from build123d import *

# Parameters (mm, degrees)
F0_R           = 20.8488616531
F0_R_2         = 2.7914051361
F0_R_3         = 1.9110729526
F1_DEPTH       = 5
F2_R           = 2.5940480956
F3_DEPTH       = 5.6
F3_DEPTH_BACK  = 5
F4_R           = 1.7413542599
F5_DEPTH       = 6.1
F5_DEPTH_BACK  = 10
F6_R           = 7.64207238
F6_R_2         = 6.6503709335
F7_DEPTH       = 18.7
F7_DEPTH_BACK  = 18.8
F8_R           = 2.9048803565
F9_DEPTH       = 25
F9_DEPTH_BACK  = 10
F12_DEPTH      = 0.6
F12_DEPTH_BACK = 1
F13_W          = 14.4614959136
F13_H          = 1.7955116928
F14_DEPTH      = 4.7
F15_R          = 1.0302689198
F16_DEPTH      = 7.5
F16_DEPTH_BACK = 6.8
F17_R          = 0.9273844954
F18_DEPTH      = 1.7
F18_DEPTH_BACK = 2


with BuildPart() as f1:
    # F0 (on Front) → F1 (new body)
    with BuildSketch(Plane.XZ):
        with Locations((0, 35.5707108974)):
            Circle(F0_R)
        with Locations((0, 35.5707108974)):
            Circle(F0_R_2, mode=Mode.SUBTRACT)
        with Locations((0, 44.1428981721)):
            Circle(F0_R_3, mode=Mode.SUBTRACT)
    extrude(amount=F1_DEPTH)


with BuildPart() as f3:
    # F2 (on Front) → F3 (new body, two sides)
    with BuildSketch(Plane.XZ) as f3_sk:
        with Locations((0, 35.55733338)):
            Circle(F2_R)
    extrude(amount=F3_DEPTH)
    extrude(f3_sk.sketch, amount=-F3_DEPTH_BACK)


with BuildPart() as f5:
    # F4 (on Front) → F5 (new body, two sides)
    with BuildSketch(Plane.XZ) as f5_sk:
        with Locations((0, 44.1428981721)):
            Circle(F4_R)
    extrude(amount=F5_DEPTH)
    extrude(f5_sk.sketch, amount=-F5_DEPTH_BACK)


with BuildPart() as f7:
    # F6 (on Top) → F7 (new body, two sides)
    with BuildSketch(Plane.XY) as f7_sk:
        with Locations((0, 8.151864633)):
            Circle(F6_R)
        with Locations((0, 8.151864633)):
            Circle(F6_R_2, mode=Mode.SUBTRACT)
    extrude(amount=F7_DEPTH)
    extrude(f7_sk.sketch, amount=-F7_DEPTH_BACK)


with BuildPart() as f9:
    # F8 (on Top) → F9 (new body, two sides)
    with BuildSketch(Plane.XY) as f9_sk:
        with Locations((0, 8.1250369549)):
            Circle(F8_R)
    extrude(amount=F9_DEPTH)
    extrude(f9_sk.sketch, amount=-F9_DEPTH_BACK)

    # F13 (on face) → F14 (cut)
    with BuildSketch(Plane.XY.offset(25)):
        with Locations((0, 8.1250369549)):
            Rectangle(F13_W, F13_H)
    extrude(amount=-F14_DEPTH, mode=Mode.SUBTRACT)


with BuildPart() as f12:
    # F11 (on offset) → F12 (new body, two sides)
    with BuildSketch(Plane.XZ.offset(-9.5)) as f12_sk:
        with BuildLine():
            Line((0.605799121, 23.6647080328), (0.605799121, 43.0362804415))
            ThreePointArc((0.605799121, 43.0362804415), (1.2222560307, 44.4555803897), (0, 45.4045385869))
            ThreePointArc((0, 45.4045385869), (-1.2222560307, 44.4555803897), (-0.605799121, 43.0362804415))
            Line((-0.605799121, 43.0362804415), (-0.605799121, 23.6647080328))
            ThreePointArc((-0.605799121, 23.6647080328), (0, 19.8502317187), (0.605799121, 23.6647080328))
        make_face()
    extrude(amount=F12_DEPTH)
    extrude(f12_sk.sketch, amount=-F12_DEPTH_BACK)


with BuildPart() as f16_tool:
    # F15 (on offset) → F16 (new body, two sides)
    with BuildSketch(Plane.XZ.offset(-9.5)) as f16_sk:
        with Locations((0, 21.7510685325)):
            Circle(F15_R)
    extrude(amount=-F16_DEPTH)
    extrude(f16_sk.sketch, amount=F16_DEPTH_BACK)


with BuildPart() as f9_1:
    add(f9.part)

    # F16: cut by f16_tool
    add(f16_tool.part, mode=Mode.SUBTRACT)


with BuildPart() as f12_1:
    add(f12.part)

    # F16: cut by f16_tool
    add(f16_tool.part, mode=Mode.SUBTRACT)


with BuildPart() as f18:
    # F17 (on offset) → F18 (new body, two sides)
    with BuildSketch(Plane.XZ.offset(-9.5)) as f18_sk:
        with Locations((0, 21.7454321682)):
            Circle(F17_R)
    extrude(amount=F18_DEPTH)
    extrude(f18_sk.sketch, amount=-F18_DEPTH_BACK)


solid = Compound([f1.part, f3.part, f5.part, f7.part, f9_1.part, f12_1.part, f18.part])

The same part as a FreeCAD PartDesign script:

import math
import FreeCAD as App
import Part
import Sketcher

V = App.Vector

doc = App.newDocument("Part")
body = doc.addObject("PartDesign::Body", "Body")

sketch1 = body.newObject("Sketcher::SketchObject", "Sketch")
sketch1.AttachmentSupport = (doc.getObject("XZ_Plane"), [""])
sketch1.MapMode = "FlatFace"
sketch1.addGeometry([
    Part.Circle(V(0, 35.6, 0), V(0, 0, 1), 20.8),
    Part.Circle(V(0, 35.6, 0), V(0, 0, 1), 2.8),
    Part.Circle(V(0, 44.1, 0), V(0, 0, 1), 1.9),
], False)
sketch1.addConstraint([
    Sketcher.Constraint("Coincident", 1, 3, 0, 3),
    Sketcher.Constraint("PointOnObject", 0, 3, -2),
    Sketcher.Constraint("PointOnObject", 2, 3, -2),
    Sketcher.Constraint("Diameter", 1, 5.58281),
    Sketcher.Constraint("Diameter", 0, 41.697723),
    Sketcher.Constraint("Diameter", 2, 3.822146),
    Sketcher.Constraint("DistanceY", -1, 1, 2, 3, 44.142898),
    Sketcher.Constraint("DistanceY", -1, 1, 0, 3, 35.570711),
])
pad1 = body.newObject("PartDesign::Pad", "Pad")
pad1.Profile = sketch1
pad1.Length = 5
body2 = doc.addObject("PartDesign::Body", "Body001")

sketch2 = body2.newObject("Sketcher::SketchObject", "Sketch001")
sketch2.AttachmentSupport = (doc.getObject("XZ_Plane001"), [""])
sketch2.MapMode = "FlatFace"
sketch2.addGeometry(Part.Circle(V(0, 35.6, 0), V(0, 0, 1), 2.6), False)
sketch2.addConstraint([
    Sketcher.Constraint("PointOnObject", 0, 3, -2),
    Sketcher.Constraint("Diameter", 0, 5.188096),
    Sketcher.Constraint("DistanceY", -1, 1, 0, 3, 35.557333),
])
pad2 = body2.newObject("PartDesign::Pad", "Pad001")
pad2.Profile = sketch2
pad2.Type = "TwoLengths"
pad2.Length = 5.6
pad2.Length2 = 5
body3 = doc.addObject("PartDesign::Body", "Body002")

sketch3 = body3.newObject("Sketcher::SketchObject", "Sketch002")
sketch3.AttachmentSupport = (doc.getObject("XZ_Plane002"), [""])
sketch3.MapMode = "FlatFace"
sketch3.addGeometry(Part.Circle(V(0, 44.1, 0), V(0, 0, 1), 1.7), False)
sketch3.addConstraint([
    Sketcher.Constraint("PointOnObject", 0, 3, -2),
    Sketcher.Constraint("Diameter", 0, 3.482709),
    Sketcher.Constraint("DistanceY", -1, 1, 0, 3, 44.142898),
])
pad3 = body3.newObject("PartDesign::Pad", "Pad002")
pad3.Profile = sketch3
pad3.Type = "TwoLengths"
pad3.Length = 6.1
pad3.Length2 = 10
body4 = doc.addObject("PartDesign::Body", "Body003")

sketch4 = body4.newObject("Sketcher::SketchObject", "Sketch003")
sketch4.AttachmentSupport = (doc.getObject("XY_Plane003"), [""])
sketch4.MapMode = "FlatFace"
sketch4.addGeometry([
    Part.Circle(V(0, 8, 0), V(0, 0, 1), 8),
    Part.Circle(V(0, 8, 0), V(0, 0, 1), 7),
], False)
sketch4.addConstraint([
    Sketcher.Constraint("Coincident", 1, 3, 0, 3),
    Sketcher.Constraint("PointOnObject", 0, 3, -2),
    Sketcher.Constraint("Diameter", 1, 13.300742),
    Sketcher.Constraint("Diameter", 0, 15.284145),
    Sketcher.Constraint("DistanceY", -1, 1, 0, 3, 8.151865),
])
pad4 = body4.newObject("PartDesign::Pad", "Pad003")
pad4.Profile = sketch4
pad4.Type = "TwoLengths"
pad4.Length = 18.7
pad4.Length2 = 18.8
body5 = doc.addObject("PartDesign::Body", "Body004")

sketch5 = body5.newObject("Sketcher::SketchObject", "Sketch004")
sketch5.AttachmentSupport = (doc.getObject("XY_Plane004"), [""])
sketch5.MapMode = "FlatFace"
sketch5.addGeometry(Part.Circle(V(0, 8.1, 0), V(0, 0, 1), 2.9), False)
sketch5.addConstraint([
    Sketcher.Constraint("PointOnObject", 0, 3, -2),
    Sketcher.Constraint("Diameter", 0, 5.809761),
    Sketcher.Constraint("DistanceY", -1, 1, 0, 3, 8.125037),
])
pad5 = body5.newObject("PartDesign::Pad", "Pad004")
pad5.Profile = sketch5
pad5.Type = "TwoLengths"
pad5.Length = 25
pad5.Length2 = 10

sketch6 = body5.newObject("Sketcher::SketchObject", "Sketch005")
sketch6.AttachmentSupport = (doc.getObject("XY_Plane004"), [""])
sketch6.MapMode = "FlatFace"
sketch6.AttachmentOffset = App.Placement(V(0, 0, 25), App.Rotation())
sketch6.addGeometry([
    Part.LineSegment(V(-7.2, 9, 0), V(-7.2, 7.2, 0)),
    Part.LineSegment(V(-7.2, 7.2, 0), V(7.2, 7.2, 0)),
    Part.LineSegment(V(7.2, 7.2, 0), V(7.2, 9, 0)),
    Part.LineSegment(V(7.2, 9, 0), V(-7.2, 9, 0)),
], False)
sketch6.addConstraint([
    Sketcher.Constraint("Coincident", 0, 2, 1, 1),
    Sketcher.Constraint("Coincident", 1, 2, 2, 1),
    Sketcher.Constraint("Coincident", 2, 2, 3, 1),
    Sketcher.Constraint("Coincident", 3, 2, 0, 1),
    Sketcher.Constraint("Vertical", 0),
    Sketcher.Constraint("Horizontal", 1),
    Sketcher.Constraint("Vertical", 2),
    Sketcher.Constraint("Horizontal", 3),
    Sketcher.Constraint("DistanceY", 0, 2, 0, 1, 1.795512),
    Sketcher.Constraint("DistanceX", 1, 1, 1, 2, 14.461496),
    Sketcher.Constraint("DistanceY", -1, 1, 0, 2, 7.227281),
    Sketcher.Constraint("DistanceX", 0, 2, -1, 1, 7.230748),
])
pocket1 = body5.newObject("PartDesign::Pocket", "Pocket")
pocket1.Profile = sketch6
pocket1.Length = 4.7
body6 = doc.addObject("PartDesign::Body", "Body005")

sketch7 = body6.newObject("Sketcher::SketchObject", "Sketch006")
sketch7.AttachmentSupport = (doc.getObject("XZ_Plane005"), [""])
sketch7.MapMode = "FlatFace"
sketch7.AttachmentOffset = App.Placement(V(0, 0, -9.5), App.Rotation())
sketch7.addGeometry([
    Part.LineSegment(V(0.6, 23.7, 0), V(0.6, 43, 0)),
    Part.ArcOfCircle(Part.Circle(V(0, 44.1, 0), V(0, 0, 1), 1.3), math.radians(-61), math.radians(241)),
    Part.LineSegment(V(-0.6, 43, 0), V(-0.6, 23.7, 0)),
    Part.ArcOfCircle(Part.Circle(V(0, 21.8, 0), V(0, 0, 1), 2), math.radians(108), math.radians(432)),
], False)
sketch7.addConstraint([
    Sketcher.Constraint("Coincident", 0, 2, 1, 1),
    Sketcher.Constraint("Coincident", 1, 2, 2, 1),
    Sketcher.Constraint("Coincident", 2, 2, 3, 1),
    Sketcher.Constraint("Coincident", 3, 2, 0, 1),
    Sketcher.Constraint("Vertical", 0),
    Sketcher.Constraint("Vertical", 2),
    Sketcher.Constraint("Symmetric", 0, 2, 1, 2, -2),
    Sketcher.Constraint("PointOnObject", 3, 3, -2),
    Sketcher.Constraint("Radius", 1, 1.261611),
    Sketcher.Constraint("Radius", 3, 1.955343),
    Sketcher.Constraint("DistanceX", -1, 1, 0, 2, 0.605799),
    Sketcher.Constraint("DistanceY", 0, 1, 0, 2, 19.371572),
    Sketcher.Constraint("DistanceY", -1, 1, 0, 2, 43.03628),
])
pad6 = body6.newObject("PartDesign::Pad", "Pad005")
pad6.Profile = sketch7
pad6.Type = "TwoLengths"
pad6.Length = 0.6
pad6.Length2 = 1
body7 = doc.addObject("PartDesign::Body", "Body006")

sketch8 = body7.newObject("Sketcher::SketchObject", "Sketch007")
sketch8.AttachmentSupport = (doc.getObject("XZ_Plane006"), [""])
sketch8.MapMode = "FlatFace"
sketch8.AttachmentOffset = App.Placement(V(0, 0, -9.5), App.Rotation())
sketch8.addGeometry(Part.Circle(V(0, 21.8, 0), V(0, 0, 1), 1), False)
sketch8.addConstraint([
    Sketcher.Constraint("PointOnObject", 0, 3, -2),
    Sketcher.Constraint("Diameter", 0, 2.060538),
    Sketcher.Constraint("DistanceY", -1, 1, 0, 3, 21.751069),
])
pad7 = body7.newObject("PartDesign::Pad", "Pad006")
pad7.Profile = sketch8
pad7.Type = "TwoLengths"
pad7.Length = 7.5
pad7.Length2 = 6.8
pad7.Reversed = True
doc.recompute()

body8 = doc.addObject("PartDesign::Body", "Body007")
body8.BaseFeature = body7
boolean = body5.newObject("PartDesign::Boolean", "Boolean")
boolean.Type = "Cut"
boolean.addObjects([body8])
doc.recompute()

boolean2 = body6.newObject("PartDesign::Boolean", "Boolean001")
boolean2.Type = "Cut"
boolean2.addObjects([body7])
body9 = doc.addObject("PartDesign::Body", "Body008")

sketch9 = body9.newObject("Sketcher::SketchObject", "Sketch008")
sketch9.AttachmentSupport = (doc.getObject("XZ_Plane008"), [""])
sketch9.MapMode = "FlatFace"
sketch9.AttachmentOffset = App.Placement(V(0, 0, -9.5), App.Rotation())
sketch9.addGeometry(Part.Circle(V(0, 21.7, 0), V(0, 0, 1), 0.9), False)
sketch9.addConstraint([
    Sketcher.Constraint("PointOnObject", 0, 3, -2),
    Sketcher.Constraint("Diameter", 0, 1.854769),
    Sketcher.Constraint("DistanceY", -1, 1, 0, 3, 21.745432),
])
pad8 = body9.newObject("PartDesign::Pad", "Pad007")
pad8.Profile = sketch9
pad8.Type = "TwoLengths"
pad8.Length = 1.7
pad8.Length2 = 2

doc.recompute()
